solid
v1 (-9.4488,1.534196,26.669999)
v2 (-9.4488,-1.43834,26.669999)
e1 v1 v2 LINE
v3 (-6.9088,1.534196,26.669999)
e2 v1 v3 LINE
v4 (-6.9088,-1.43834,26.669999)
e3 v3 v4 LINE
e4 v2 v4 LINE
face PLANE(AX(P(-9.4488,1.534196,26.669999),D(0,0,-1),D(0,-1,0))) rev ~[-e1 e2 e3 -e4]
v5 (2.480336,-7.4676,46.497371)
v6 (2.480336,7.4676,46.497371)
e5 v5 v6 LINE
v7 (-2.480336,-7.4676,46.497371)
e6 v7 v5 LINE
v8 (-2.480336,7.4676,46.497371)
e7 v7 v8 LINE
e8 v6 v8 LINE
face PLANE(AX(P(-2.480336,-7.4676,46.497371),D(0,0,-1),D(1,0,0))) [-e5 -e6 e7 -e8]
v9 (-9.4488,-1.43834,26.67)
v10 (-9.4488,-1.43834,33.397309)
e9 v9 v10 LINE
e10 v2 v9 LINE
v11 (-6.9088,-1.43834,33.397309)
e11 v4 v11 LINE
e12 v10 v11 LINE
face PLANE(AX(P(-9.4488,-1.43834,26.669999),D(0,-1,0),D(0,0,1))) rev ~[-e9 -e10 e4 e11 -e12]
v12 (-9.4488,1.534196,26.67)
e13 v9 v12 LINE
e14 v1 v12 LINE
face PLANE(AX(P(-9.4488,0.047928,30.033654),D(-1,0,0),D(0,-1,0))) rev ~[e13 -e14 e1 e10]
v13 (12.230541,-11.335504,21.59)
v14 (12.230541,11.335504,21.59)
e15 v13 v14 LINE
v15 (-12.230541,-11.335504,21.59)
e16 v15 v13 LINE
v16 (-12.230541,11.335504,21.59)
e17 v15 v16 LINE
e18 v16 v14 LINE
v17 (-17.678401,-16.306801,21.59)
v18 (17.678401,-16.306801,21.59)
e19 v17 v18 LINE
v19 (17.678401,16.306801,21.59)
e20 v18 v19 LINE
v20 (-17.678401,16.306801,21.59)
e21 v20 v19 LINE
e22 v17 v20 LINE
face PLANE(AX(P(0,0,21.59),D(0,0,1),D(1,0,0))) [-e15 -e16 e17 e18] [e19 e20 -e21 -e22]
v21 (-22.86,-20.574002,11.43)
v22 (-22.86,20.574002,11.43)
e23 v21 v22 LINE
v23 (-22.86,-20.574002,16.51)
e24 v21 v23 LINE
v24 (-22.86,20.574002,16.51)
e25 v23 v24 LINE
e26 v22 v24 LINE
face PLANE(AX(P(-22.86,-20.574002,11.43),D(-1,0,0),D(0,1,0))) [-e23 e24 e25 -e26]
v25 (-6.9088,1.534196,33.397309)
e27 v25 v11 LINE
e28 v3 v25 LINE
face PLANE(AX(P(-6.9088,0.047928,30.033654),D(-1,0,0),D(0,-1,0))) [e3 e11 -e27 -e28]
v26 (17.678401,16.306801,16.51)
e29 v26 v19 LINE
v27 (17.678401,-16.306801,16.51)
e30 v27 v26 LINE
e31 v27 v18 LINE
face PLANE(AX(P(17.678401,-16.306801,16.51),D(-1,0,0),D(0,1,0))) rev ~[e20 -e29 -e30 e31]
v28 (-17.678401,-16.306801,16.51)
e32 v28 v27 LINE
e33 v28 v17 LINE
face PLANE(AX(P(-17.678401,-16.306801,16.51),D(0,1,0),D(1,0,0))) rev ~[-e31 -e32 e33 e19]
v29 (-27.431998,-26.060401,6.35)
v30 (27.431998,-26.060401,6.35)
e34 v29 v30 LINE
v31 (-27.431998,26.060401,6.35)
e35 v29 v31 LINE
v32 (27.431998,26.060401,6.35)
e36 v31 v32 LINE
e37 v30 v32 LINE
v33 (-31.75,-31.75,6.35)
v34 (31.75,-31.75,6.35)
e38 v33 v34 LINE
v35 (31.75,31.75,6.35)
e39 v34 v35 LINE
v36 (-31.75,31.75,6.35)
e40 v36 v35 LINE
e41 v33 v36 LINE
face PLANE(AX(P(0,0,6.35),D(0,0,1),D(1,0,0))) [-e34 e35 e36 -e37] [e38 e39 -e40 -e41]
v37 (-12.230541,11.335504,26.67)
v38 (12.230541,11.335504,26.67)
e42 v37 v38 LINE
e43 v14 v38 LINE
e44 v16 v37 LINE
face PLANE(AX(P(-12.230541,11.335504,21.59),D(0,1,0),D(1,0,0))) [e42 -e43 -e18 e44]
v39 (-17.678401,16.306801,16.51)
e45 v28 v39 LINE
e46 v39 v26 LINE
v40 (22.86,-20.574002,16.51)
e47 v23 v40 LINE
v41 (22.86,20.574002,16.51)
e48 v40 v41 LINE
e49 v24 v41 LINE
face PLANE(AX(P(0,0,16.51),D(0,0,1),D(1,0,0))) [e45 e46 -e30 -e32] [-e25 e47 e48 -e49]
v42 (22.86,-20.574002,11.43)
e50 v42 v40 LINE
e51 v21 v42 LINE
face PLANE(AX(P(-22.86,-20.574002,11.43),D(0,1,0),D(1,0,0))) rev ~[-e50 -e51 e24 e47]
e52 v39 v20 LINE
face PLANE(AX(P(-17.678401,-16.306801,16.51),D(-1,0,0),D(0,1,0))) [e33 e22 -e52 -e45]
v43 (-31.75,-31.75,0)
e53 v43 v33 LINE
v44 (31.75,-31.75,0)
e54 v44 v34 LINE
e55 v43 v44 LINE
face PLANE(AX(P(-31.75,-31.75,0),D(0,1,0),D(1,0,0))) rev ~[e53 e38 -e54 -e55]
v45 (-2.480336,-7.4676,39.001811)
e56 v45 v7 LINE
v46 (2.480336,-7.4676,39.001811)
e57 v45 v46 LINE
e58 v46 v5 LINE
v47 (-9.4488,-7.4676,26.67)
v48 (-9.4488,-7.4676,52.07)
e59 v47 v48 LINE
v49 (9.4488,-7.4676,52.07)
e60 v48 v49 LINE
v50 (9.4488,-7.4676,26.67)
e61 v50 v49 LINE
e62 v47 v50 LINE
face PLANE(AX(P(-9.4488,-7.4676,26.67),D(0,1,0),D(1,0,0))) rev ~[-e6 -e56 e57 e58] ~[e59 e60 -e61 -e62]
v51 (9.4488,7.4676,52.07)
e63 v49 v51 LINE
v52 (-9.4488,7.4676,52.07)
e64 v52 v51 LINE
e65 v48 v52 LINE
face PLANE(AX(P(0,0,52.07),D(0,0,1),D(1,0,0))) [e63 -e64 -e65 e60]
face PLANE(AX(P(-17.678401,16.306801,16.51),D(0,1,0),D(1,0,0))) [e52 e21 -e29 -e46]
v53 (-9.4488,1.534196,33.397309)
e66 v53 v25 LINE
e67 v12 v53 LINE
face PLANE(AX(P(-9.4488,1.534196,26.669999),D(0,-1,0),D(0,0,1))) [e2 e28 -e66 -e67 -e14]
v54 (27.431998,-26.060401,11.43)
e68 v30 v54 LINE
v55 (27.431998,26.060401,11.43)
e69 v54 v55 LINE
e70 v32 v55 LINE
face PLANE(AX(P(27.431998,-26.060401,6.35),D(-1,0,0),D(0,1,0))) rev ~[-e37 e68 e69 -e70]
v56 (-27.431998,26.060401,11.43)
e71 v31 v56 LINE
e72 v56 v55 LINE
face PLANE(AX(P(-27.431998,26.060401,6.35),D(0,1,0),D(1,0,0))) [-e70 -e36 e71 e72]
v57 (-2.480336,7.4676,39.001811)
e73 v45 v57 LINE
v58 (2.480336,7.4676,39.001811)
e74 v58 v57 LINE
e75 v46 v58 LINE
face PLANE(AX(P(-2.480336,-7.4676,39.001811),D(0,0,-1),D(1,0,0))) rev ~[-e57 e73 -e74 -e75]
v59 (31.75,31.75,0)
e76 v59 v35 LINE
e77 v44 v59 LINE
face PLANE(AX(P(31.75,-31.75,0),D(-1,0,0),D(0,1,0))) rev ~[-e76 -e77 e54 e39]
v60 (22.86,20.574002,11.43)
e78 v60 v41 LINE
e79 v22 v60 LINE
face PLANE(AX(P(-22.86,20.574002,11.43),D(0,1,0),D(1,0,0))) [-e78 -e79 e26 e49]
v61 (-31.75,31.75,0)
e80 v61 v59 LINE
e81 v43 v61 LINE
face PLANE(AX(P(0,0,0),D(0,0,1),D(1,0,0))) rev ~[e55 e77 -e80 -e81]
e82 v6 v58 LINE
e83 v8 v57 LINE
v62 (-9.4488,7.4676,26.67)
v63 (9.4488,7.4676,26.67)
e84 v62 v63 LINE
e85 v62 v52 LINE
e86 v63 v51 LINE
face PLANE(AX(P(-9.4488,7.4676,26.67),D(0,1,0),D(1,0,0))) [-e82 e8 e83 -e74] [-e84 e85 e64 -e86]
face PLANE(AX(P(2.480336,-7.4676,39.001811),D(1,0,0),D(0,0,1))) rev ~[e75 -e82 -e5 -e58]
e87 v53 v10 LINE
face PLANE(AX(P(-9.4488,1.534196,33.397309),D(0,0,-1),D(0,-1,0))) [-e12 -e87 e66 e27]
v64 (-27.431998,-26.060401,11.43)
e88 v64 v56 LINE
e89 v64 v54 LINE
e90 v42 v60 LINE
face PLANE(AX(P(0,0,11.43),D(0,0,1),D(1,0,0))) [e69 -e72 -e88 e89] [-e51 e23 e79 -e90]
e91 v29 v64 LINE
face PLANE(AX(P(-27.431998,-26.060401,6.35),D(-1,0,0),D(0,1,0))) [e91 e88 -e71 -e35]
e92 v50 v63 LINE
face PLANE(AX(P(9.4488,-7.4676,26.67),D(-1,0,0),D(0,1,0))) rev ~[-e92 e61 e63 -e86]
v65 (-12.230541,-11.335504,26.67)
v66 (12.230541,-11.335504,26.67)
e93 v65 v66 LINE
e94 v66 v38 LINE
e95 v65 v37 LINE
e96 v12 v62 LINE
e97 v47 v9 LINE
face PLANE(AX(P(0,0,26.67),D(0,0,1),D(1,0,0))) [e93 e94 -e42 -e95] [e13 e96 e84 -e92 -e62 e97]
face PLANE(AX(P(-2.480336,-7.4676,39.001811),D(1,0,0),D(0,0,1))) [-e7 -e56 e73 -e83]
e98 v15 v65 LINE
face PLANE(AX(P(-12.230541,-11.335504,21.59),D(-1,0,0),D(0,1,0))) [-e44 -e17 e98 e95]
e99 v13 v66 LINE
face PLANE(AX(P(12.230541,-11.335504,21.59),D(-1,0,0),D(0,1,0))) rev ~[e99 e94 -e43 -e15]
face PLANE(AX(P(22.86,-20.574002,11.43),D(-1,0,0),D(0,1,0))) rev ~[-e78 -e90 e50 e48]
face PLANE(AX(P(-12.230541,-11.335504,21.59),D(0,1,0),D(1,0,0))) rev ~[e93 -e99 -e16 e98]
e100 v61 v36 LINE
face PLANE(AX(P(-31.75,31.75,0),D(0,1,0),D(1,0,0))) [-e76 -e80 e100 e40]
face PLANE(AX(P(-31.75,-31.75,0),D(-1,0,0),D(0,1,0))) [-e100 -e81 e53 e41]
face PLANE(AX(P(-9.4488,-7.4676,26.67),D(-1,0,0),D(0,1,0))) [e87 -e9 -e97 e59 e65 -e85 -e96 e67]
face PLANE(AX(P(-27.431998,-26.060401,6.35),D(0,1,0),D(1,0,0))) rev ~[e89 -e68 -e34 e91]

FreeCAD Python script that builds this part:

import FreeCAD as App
import Part
import Sketcher
from FreeCAD import Vector
Q = App.Units.Quantity

doc = App.newDocument("Part")
params = doc.addObject("Spreadsheet::Sheet", "Params")
for row, (alias, value) in enumerate([
    ("sketch1_width", "2.5 in"),
    ("pad1_length", "0.25 in"),
    ("sketch2_width", "2.1599998 in"),
    ("sketch2_height", "2.0520001 in"),
    ("pad2_length", "0.2 in"),
    ("sketch3_width", "1.8 in"),
    ("sketch3_height", "1.6200002 in"),
    ("pad3_length", "0.2 in"),
    ("sketch4_width", "1.3920001 in"),
    ("sketch4_height", "1.2840001 in"),
    ("pad4_length", "0.2 in"),
    ("pad5_length", "0.2 in"),
    ("sketch6_width", "0.744 in"),
    ("sketch6_height", "0.588 in"),
    ("pad6_length", "1 in"),
    ("pocket1_length", "1.55 in"),
    ("pocket2_length", "0.1 in"),
], start=1):
    params.set(f"A{row}", alias)
    params.set(f"B{row}", "=" + value)
    params.setAlias(f"B{row}", alias)

body = doc.addObject("PartDesign::Body", "Body")

# Sketch on XY plane
sketch1 = body.newObject("Sketcher::SketchObject", "Sketch")
sketch1.AttachmentSupport = (doc.getObject("XY_Plane"), [""])
sketch1.MapMode = "FlatFace"
sketch1.addGeometry([
    Part.LineSegment(Vector(-31.75, 31.75, 0), Vector(-31.75, -31.75, 0)),
    Part.LineSegment(Vector(-31.75, -31.75, 0), Vector(31.75, -31.75, 0)),
    Part.LineSegment(Vector(31.75, -31.75, 0), Vector(31.75, 31.75, 0)),
    Part.LineSegment(Vector(31.75, 31.75, 0), Vector(-31.75, 31.75, 0)),
], False)
sketch1.addConstraint([
    Sketcher.Constraint("Coincident", 0, 2, 1, 1),
    Sketcher.Constraint("Coincident", 1, 2, 2, 1),
    Sketcher.Constraint("Coincident", 2, 2, 3, 1),
    Sketcher.Constraint("Coincident", 3, 2, 0, 1),
    Sketcher.Constraint("Vertical", 0),
    Sketcher.Constraint("Horizontal", 1),
    Sketcher.Constraint("Vertical", 2),
    Sketcher.Constraint("Horizontal", 3),
    Sketcher.Constraint("Symmetric", 0, 2, 2, 2, -1, 1),
    Sketcher.Constraint("Equal", 3, 0),
    Sketcher.Constraint("DistanceX", 1, 1, 1, 2, Q("2.5 in")),
])
sketch1.setExpression("Constraints[10]", "Params.sketch1_width")
pad1 = body.newObject("PartDesign::Pad", "Pad")
pad1.Profile = sketch1
pad1.setExpression("Length", "Params.pad1_length")

# Sketch on XY plane
sketch2 = body.newObject("Sketcher::SketchObject", "Sketch001")
sketch2.AttachmentSupport = (doc.getObject("XY_Plane"), [""])
sketch2.MapMode = "FlatFace"
sketch2.AttachmentOffset = App.Placement(Vector(0, 0, 0.25 * 25.4), App.Rotation())
sketch2.addGeometry([
    Part.LineSegment(Vector(-27.431998, 26.060401, 0), Vector(-27.431998, -26.060401, 0)),
    Part.LineSegment(Vector(-27.431998, -26.060401, 0), Vector(27.431998, -26.060401, 0)),
    Part.LineSegment(Vector(27.431998, -26.060401, 0), Vector(27.431998, 26.060401, 0)),
    Part.LineSegment(Vector(27.431998, 26.060401, 0), Vector(-27.431998, 26.060401, 0)),
], False)
sketch2.addConstraint([
    Sketcher.Constraint("Coincident", 0, 2, 1, 1),
    Sketcher.Constraint("Coincident", 1, 2, 2, 1),
    Sketcher.Constraint("Coincident", 2, 2, 3, 1),
    Sketcher.Constraint("Coincident", 3, 2, 0, 1),
    Sketcher.Constraint("Vertical", 0),
    Sketcher.Constraint("Horizontal", 1),
    Sketcher.Constraint("Vertical", 2),
    Sketcher.Constraint("Horizontal", 3),
    Sketcher.Constraint("Symmetric", 0, 2, 2, 2, -1, 1),
    Sketcher.Constraint("DistanceX", 1, 1, 1, 2, Q("2.1599998 in")),
    Sketcher.Constraint("DistanceY", 0, 2, 0, 1, Q("2.0520001 in")),
])
sketch2.setExpression("Constraints[9]", "Params.sketch2_width")
sketch2.setExpression("Constraints[10]", "Params.sketch2_height")
pad2 = body.newObject("PartDesign::Pad", "Pad001")
pad2.Profile = sketch2
pad2.setExpression("Length", "Params.pad2_length")

# Sketch on XY plane
sketch3 = body.newObject("Sketcher::SketchObject", "Sketch002")
sketch3.AttachmentSupport = (doc.getObject("XY_Plane"), [""])
sketch3.MapMode = "FlatFace"
sketch3.AttachmentOffset = App.Placement(Vector(0, 0, 0.45 * 25.4), App.Rotation())
sketch3.addGeometry([
    Part.LineSegment(Vector(-22.86, 20.574002, 0), Vector(-22.86, -20.574002, 0)),
    Part.LineSegment(Vector(-22.86, -20.574002, 0), Vector(22.86, -20.574002, 0)),
    Part.LineSegment(Vector(22.86, -20.574002, 0), Vector(22.86, 20.574002, 0)),
    Part.LineSegment(Vector(22.86, 20.574002, 0), Vector(-22.86, 20.574002, 0)),
], False)
sketch3.addConstraint([
    Sketcher.Constraint("Coincident", 0, 2, 1, 1),
    Sketcher.Constraint("Coincident", 1, 2, 2, 1),
    Sketcher.Constraint("Coincident", 2, 2, 3, 1),
    Sketcher.Constraint("Coincident", 3, 2, 0, 1),
    Sketcher.Constraint("Vertical", 0),
    Sketcher.Constraint("Horizontal", 1),
    Sketcher.Constraint("Vertical", 2),
    Sketcher.Constraint("Horizontal", 3),
    Sketcher.Constraint("Symmetric", 0, 2, 2, 2, -1, 1),
    Sketcher.Constraint("DistanceX", 1, 1, 1, 2, Q("1.8 in")),
    Sketcher.Constraint("DistanceY", 0, 2, 0, 1, Q("1.6200002 in")),
])
sketch3.setExpression("Constraints[9]", "Params.sketch3_width")
sketch3.setExpression("Constraints[10]", "Params.sketch3_height")
pad3 = body.newObject("PartDesign::Pad", "Pad002")
pad3.Profile = sketch3
pad3.setExpression("Length", "Params.pad3_length")

# Sketch on XY plane
sketch4 = body.newObject("Sketcher::SketchObject", "Sketch003")
sketch4.AttachmentSupport = (doc.getObject("XY_Plane"), [""])
sketch4.MapMode = "FlatFace"
sketch4.AttachmentOffset = App.Placement(Vector(0, 0, 0.65 * 25.4), App.Rotation())
sketch4.addGeometry([
    Part.LineSegment(Vector(-17.678401, 16.306801, 0), Vector(-17.678401, -16.306801, 0)),
    Part.LineSegment(Vector(-17.678401, -16.306801, 0), Vector(17.678401, -16.306801, 0)),
    Part.LineSegment(Vector(17.678401, -16.306801, 0), Vector(17.678401, 16.306801, 0)),
    Part.LineSegment(Vector(17.678401, 16.306801, 0), Vector(-17.678401, 16.306801, 0)),
], False)
sketch4.addConstraint([
    Sketcher.Constraint("Coincident", 0, 2, 1, 1),
    Sketcher.Constraint("Coincident", 1, 2, 2, 1),
    Sketcher.Constraint("Coincident", 2, 2, 3, 1),
    Sketcher.Constraint("Coincident", 3, 2, 0, 1),
    Sketcher.Constraint("Vertical", 0),
    Sketcher.Constraint("Horizontal", 1),
    Sketcher.Constraint("Vertical", 2),
    Sketcher.Constraint("Horizontal", 3),
    Sketcher.Constraint("Symmetric", 0, 2, 2, 2, -1, 1),
    Sketcher.Constraint("DistanceX", 1, 1, 1, 2, Q("1.3920001 in")),
    Sketcher.Constraint("DistanceY", 0, 2, 0, 1, Q("1.2840001 in")),
])
sketch4.setExpression("Constraints[9]", "Params.sketch4_width")
sketch4.setExpression("Constraints[10]", "Params.sketch4_height")
pad4 = body.newObject("PartDesign::Pad", "Pad003")
pad4.Profile = sketch4
pad4.setExpression("Length", "Params.pad4_length")

# Sketch on XY plane
sketch5 = body.newObject("Sketcher::SketchObject", "Sketch004")
sketch5.AttachmentSupport = (doc.getObject("XY_Plane"), [""])
sketch5.MapMode = "FlatFace"
sketch5.AttachmentOffset = App.Placement(Vector(0, 0, 0.85 * 25.4), App.Rotation())
sketch5.addGeometry([
    Part.LineSegment(Vector(-12.230541, 11.335504, 0), Vector(-12.230541, -11.335504, 0)),
    Part.LineSegment(Vector(-12.230541, -11.335504, 0), Vector(12.230541, -11.335504, 0)),
    Part.LineSegment(Vector(12.230541, -11.335504, 0), Vector(12.230541, 11.335504, 0)),
    Part.LineSegment(Vector(12.230541, 11.335504, 0), Vector(-12.230541, 11.335504, 0)),
], False)
sketch5.addConstraint([
    Sketcher.Constraint("Coincident", 0, 2, 1, 1),
    Sketcher.Constraint("Coincident", 1, 2, 2, 1),
    Sketcher.Constraint("Coincident", 2, 2, 3, 1),
    Sketcher.Constraint("Coincident", 3, 2, 0, 1),
    Sketcher.Constraint("Vertical", 0),
    Sketcher.Constraint("Horizontal", 1),
    Sketcher.Constraint("Vertical", 2),
    Sketcher.Constraint("Horizontal", 3),
    Sketcher.Constraint("Symmetric", 0, 2, 2, 2, -1, 1),
    Sketcher.Constraint("DistanceY", 0, 2, 0, 1, 22.671008),
    Sketcher.Constraint("DistanceX", 1, 1, 1, 2, 24.461082),
])
pad5 = body.newObject("PartDesign::Pad", "Pad004")
pad5.Profile = sketch5
pad5.setExpression("Length", "Params.pad5_length")

# Sketch on XY plane
sketch6 = body.newObject("Sketcher::SketchObject", "Sketch005")
sketch6.AttachmentSupport = (doc.getObject("XY_Plane"), [""])
sketch6.MapMode = "FlatFace"
sketch6.AttachmentOffset = App.Placement(Vector(0, 0, 1.05 * 25.4), App.Rotation())
sketch6.addGeometry([
    Part.LineSegment(Vector(-9.4488, 7.4676, 0), Vector(-9.4488, -7.4676, 0)),
    Part.LineSegment(Vector(-9.4488, -7.4676, 0), Vector(9.4488, -7.4676, 0)),
    Part.LineSegment(Vector(9.4488, -7.4676, 0), Vector(9.4488, 7.4676, 0)),
    Part.LineSegment(Vector(9.4488, 7.4676, 0), Vector(-9.4488, 7.4676, 0)),
], False)
sketch6.addConstraint([
    Sketcher.Constraint("Coincident", 0, 2, 1, 1),
    Sketcher.Constraint("Coincident", 1, 2, 2, 1),
    Sketcher.Constraint("Coincident", 2, 2, 3, 1),
    Sketcher.Constraint("Coincident", 3, 2, 0, 1),
    Sketcher.Constraint("Vertical", 0),
    Sketcher.Constraint("Horizontal", 1),
    Sketcher.Constraint("Vertical", 2),
    Sketcher.Constraint("Horizontal", 3),
    Sketcher.Constraint("Symmetric", 0, 2, 2, 2, -1, 1),
    Sketcher.Constraint("DistanceX", 1, 1, 1, 2, Q("0.744 in")),
    Sketcher.Constraint("DistanceY", 0, 2, 0, 1, Q("0.588 in")),
])
sketch6.setExpression("Constraints[9]", "Params.sketch6_width")
sketch6.setExpression("Constraints[10]", "Params.sketch6_height")
pad6 = body.newObject("PartDesign::Pad", "Pad005")
pad6.Profile = sketch6
pad6.setExpression("Length", "Params.pad6_length")

# Sketch on XZ plane
sketch7 = body.newObject("Sketcher::SketchObject", "Sketch006")
sketch7.AttachmentSupport = (doc.getObject("XZ_Plane"), [""])
sketch7.MapMode = "FlatFace"
sketch7.AttachmentOffset = App.Placement(Vector(0, 0, 0.294 * 25.4), App.Rotation())
sketch7.addGeometry([
    Part.LineSegment(Vector(-2.480336, 46.497371, 0), Vector(-2.480336, 39.001811, 0)),
    Part.LineSegment(Vector(-2.480336, 39.001811, 0), Vector(2.480336, 39.001811, 0)),
    Part.LineSegment(Vector(2.480336, 39.001811, 0), Vector(2.480336, 46.497371, 0)),
    Part.LineSegment(Vector(2.480336, 46.497371, 0), Vector(-2.480336, 46.497371, 0)),
], False)
sketch7.addConstraint([
    Sketcher.Constraint("Coincident", 0, 2, 1, 1),
    Sketcher.Constraint("Coincident", 1, 2, 2, 1),
    Sketcher.Constraint("Coincident", 2, 2, 3, 1),
    Sketcher.Constraint("Coincident", 3, 2, 0, 1),
    Sketcher.Constraint("Vertical", 0),
    Sketcher.Constraint("Horizontal", 1),
    Sketcher.Constraint("Vertical", 2),
    Sketcher.Constraint("Horizontal", 3),
    Sketcher.Constraint("DistanceX", 1, 1, 1, 2, 4.960672),
    Sketcher.Constraint("DistanceY", 0, 2, 0, 1, 7.49556),
    Sketcher.Constraint("DistanceY", -1, 1, 0, 2, 39.001811),
    Sketcher.Constraint("DistanceX", 0, 2, -1, 1, 2.480336),
])
pocket1 = body.newObject("PartDesign::Pocket", "Pocket")
pocket1.Profile = sketch7
pocket1.setExpression("Length", "Params.pocket1_length")

# Sketch on YZ plane
sketch8 = body.newObject("Sketcher::SketchObject", "Sketch007")
sketch8.AttachmentSupport = (doc.getObject("YZ_Plane"), [""])
sketch8.MapMode = "FlatFace"
sketch8.AttachmentOffset = App.Placement(Vector(0, 0, -0.372 * 25.4), App.Rotation())
sketch8.addGeometry([
    Part.LineSegment(Vector(1.534196, 33.397309, 0), Vector(1.534196, 26.669999, 0)),
    Part.LineSegment(Vector(1.534196, 26.669999, 0), Vector(-1.43834, 26.669999, 0)),
    Part.LineSegment(Vector(-1.43834, 26.669999, 0), Vector(-1.43834, 33.397309, 0)),
    Part.LineSegment(Vector(-1.43834, 33.397309, 0), Vector(1.534196, 33.397309, 0)),
], False)
sketch8.addConstraint([
    Sketcher.Constraint("Coincident", 0, 2, 1, 1),
    Sketcher.Constraint("Coincident", 1, 2, 2, 1),
    Sketcher.Constraint("Coincident", 2, 2, 3, 1),
    Sketcher.Constraint("Coincident", 3, 2, 0, 1),
    Sketcher.Constraint("Vertical", 0),
    Sketcher.Constraint("Horizontal", 1),
    Sketcher.Constraint("Vertical", 2),
    Sketcher.Constraint("Horizontal", 3),
    Sketcher.Constraint("DistanceY", -1, 1, 0, 2, Q("1.05 in")),
    Sketcher.Constraint("DistanceY", 0, 2, 0, 1, 6.727309),
    Sketcher.Constraint("DistanceX", 1, 2, 1, 1, 2.972535),
    Sketcher.Constraint("DistanceX", 1, 2, -1, 1, 1.43834),
])
pocket2 = body.newObject("PartDesign::Pocket", "Pocket001")
pocket2.Profile = sketch8
pocket2.setExpression("Length", "Params.pocket2_length")
pocket2.Reversed = True

doc.recompute()
